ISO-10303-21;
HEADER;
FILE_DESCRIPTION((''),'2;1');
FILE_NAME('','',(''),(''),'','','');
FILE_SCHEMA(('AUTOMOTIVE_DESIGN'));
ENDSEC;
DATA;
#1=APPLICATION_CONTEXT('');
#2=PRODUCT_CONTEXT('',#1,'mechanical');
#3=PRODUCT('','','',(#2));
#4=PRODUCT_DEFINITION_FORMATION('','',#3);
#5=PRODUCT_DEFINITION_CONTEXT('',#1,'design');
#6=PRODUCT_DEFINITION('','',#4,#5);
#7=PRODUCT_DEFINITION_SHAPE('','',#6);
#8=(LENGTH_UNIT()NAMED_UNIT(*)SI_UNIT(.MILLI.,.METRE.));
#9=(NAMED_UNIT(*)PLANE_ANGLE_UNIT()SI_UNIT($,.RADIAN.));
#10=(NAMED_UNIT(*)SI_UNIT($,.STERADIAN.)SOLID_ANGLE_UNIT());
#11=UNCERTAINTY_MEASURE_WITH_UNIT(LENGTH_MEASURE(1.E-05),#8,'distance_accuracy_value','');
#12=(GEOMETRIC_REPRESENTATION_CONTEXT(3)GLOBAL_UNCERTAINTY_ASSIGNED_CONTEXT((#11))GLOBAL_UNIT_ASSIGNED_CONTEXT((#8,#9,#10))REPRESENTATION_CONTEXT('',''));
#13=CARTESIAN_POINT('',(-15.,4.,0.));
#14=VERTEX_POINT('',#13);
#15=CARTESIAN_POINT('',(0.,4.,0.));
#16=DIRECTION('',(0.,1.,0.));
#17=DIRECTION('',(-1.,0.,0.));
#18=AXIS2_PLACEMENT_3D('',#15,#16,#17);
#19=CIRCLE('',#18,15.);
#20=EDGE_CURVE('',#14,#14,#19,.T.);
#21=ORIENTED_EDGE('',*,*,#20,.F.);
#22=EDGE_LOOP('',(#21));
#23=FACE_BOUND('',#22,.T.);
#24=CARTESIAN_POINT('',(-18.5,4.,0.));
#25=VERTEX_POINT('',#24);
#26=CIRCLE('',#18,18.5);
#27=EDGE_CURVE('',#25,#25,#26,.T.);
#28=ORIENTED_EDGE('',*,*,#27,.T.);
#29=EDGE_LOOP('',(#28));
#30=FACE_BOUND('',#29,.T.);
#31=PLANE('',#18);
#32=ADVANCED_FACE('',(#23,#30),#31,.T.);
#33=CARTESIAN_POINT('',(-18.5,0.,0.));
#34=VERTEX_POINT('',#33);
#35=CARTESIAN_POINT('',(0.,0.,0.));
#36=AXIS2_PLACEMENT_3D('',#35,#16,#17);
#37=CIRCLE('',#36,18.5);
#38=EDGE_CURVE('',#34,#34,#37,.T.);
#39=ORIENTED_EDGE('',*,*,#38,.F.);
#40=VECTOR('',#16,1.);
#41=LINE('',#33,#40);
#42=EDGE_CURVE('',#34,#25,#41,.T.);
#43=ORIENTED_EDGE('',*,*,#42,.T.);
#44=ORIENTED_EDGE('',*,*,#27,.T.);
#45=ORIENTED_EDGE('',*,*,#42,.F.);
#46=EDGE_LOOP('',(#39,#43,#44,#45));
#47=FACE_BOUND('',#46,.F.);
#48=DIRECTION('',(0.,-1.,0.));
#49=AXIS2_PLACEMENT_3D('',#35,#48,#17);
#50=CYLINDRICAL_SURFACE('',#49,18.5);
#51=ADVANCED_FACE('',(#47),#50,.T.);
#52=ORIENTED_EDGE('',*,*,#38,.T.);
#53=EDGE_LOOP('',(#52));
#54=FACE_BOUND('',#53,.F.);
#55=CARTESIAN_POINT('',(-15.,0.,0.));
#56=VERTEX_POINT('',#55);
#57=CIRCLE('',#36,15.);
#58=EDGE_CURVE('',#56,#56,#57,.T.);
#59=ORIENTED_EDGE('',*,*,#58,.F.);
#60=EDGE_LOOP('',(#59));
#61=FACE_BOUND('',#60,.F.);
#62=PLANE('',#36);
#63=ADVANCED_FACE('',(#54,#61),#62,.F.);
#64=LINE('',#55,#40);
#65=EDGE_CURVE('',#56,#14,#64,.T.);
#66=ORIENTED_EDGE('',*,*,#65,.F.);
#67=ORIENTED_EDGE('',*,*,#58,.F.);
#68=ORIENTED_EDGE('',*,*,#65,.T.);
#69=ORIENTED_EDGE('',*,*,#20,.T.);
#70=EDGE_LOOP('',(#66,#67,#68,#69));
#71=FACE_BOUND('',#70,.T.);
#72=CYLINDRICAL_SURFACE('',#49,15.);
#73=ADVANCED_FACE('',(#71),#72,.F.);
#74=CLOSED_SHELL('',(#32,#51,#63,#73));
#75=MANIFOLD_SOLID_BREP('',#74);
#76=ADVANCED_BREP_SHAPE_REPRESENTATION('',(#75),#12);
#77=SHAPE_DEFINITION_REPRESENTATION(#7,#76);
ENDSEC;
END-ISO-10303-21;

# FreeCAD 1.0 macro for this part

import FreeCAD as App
import Part
import Sketcher
from FreeCAD import Vector
Q = App.Units.Quantity

doc = App.newDocument("Part")
body = doc.addObject("PartDesign::Body", "Body")

sketch1 = doc.addObject("Sketcher::SketchObject", "Sketch")
body.addObject(sketch1)
sketch1.AttachmentSupport = (doc.XZ_Plane, [""])
sketch1.MapMode = "FlatFace"
sketch1.addGeometry([
    Part.Circle(Vector(0, 0, 0), Vector(0, 0, 1), 18),
    Part.Circle(Vector(0, 0, 0), Vector(0, 0, 1), 15),
], False)
sketch1.addConstraint([
    Sketcher.Constraint("Coincident", 0, 3, -1, 1),
    Sketcher.Constraint("Coincident", 1, 3, -1, 1),
    Sketcher.Constraint("Diameter", 0, Q("37 mm")),
    Sketcher.Constraint("Diameter", 1, Q("30 mm")),
])
pad1 = doc.addObject("PartDesign::Pad", "Pad")
body.addObject(pad1)
pad1.Profile = sketch1
pad1.Length = 4
pad1.Reversed = True

doc.recompute()
